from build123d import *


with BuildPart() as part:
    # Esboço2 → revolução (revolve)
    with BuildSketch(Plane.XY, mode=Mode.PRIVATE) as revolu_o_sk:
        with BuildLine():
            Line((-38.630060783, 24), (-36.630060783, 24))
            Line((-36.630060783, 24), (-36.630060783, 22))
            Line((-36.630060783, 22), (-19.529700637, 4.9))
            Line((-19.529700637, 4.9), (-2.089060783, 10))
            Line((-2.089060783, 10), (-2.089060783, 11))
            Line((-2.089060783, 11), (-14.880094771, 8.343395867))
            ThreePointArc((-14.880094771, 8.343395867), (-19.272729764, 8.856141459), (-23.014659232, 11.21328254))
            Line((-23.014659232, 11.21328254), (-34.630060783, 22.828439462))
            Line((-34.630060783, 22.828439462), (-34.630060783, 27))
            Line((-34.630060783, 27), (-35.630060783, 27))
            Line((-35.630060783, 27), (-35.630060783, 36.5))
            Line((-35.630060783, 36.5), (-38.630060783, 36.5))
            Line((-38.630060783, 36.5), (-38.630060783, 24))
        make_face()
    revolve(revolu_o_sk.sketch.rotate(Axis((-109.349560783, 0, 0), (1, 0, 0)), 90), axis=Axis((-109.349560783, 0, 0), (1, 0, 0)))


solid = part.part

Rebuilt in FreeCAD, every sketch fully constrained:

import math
import FreeCAD as App
import Part
import Sketcher
from FreeCAD import Vector
Q = App.Units.Quantity

doc = App.newDocument("Part")
body = doc.addObject("PartDesign::Body", "Body")

sketch1 = doc.addObject("Sketcher::SketchObject", "Sketch")
body.addObject(sketch1)
sketch1.AttachmentSupport = (doc.XY_Plane, [""])
sketch1.MapMode = "FlatFace"
sketch1.addGeometry(Part.LineSegment(Vector(-38.6, 24, 0), Vector(-36.6, 24, 0)), False)
sketch1.addGeometry(Part.LineSegment(Vector(-36.6, 24, 0), Vector(-36.6, 22, 0)), False)
sketch1.addGeometry(Part.LineSegment(Vector(-36.6, 22, 0), Vector(-19.5, 4.9, 0)), False)
sketch1.addGeometry(Part.LineSegment(Vector(-19.5, 4.9, 0), Vector(-2.1, 10, 0)), False)
sketch1.addGeometry(Part.LineSegment(Vector(-2.1, 10, 0), Vector(-2.1, 11, 0)), False)
sketch1.addGeometry(Part.LineSegment(Vector(-2.1, 11, 0), Vector(-14.9, 8.3, 0)), False)
sketch1.addGeometry(Part.ArcOfCircle(Part.Circle(Vector(-15.9, 18.3, 0), Vector(0, 0, 1), 10), math.radians(-135), math.radians(-84)), False)
sketch1.addGeometry(Part.LineSegment(Vector(-23, 11.2, 0), Vector(-34.6, 22.8, 0)), False)
sketch1.addGeometry(Part.LineSegment(Vector(-34.6, 22.8, 0), Vector(-34.6, 27, 0)), False)
sketch1.addGeometry(Part.LineSegment(Vector(-34.6, 27, 0), Vector(-35.6, 27, 0)), False)
sketch1.addGeometry(Part.LineSegment(Vector(-35.6, 27, 0), Vector(-35.6, 36.5, 0)), False)
sketch1.addGeometry(Part.LineSegment(Vector(-35.6, 36.5, 0), Vector(-38.6, 36.5, 0)), False)
sketch1.addGeometry(Part.LineSegment(Vector(-38.6, 36.5, 0), Vector(-38.6, 24, 0)), False)
sketch1.addConstraint(Sketcher.Constraint("Coincident", 0, 2, 1, 1))
sketch1.addConstraint(Sketcher.Constraint("Coincident", 1, 2, 2, 1))
sketch1.addConstraint(Sketcher.Constraint("Coincident", 2, 2, 3, 1))
sketch1.addConstraint(Sketcher.Constraint("Coincident", 3, 2, 4, 1))
sketch1.addConstraint(Sketcher.Constraint("Coincident", 4, 2, 5, 1))
sketch1.addConstraint(Sketcher.Constraint("Coincident", 5, 2, 6, 2))
sketch1.addConstraint(Sketcher.Constraint("Coincident", 6, 1, 7, 1))
sketch1.addConstraint(Sketcher.Constraint("Coincident", 7, 2, 8, 1))
sketch1.addConstraint(Sketcher.Constraint("Coincident", 8, 2, 9, 1))
sketch1.addConstraint(Sketcher.Constraint("Coincident", 9, 2, 10, 1))
sketch1.addConstraint(Sketcher.Constraint("Coincident", 10, 2, 11, 1))
sketch1.addConstraint(Sketcher.Constraint("Coincident", 11, 2, 12, 1))
sketch1.addConstraint(Sketcher.Constraint("Coincident", 12, 2, 0, 1))
sketch1.addConstraint(Sketcher.Constraint("Horizontal", 0))
sketch1.addConstraint(Sketcher.Constraint("Vertical", 1))
sketch1.addConstraint(Sketcher.Constraint("Vertical", 4))
sketch1.addConstraint(Sketcher.Constraint("Vertical", 8))
sketch1.addConstraint(Sketcher.Constraint("Horizontal", 9))
sketch1.addConstraint(Sketcher.Constraint("Vertical", 10))
sketch1.addConstraint(Sketcher.Constraint("Horizontal", 11))
sketch1.addConstraint(Sketcher.Constraint("Vertical", 12))
sketch1.addConstraint(Sketcher.Constraint("Parallel", 2, 7))
sketch1.addConstraint(Sketcher.Constraint("Equal", 0, 1))
sketch1.addConstraint(Sketcher.Constraint("Equal", 9, 4))
sketch1.addConstraint(Sketcher.Constraint("Radius", 6, 10.0))
sketch1.addConstraint(Sketcher.Constraint("DistanceX", 0, 1, 0, 2, 2.0))
sketch1.addConstraint(Sketcher.Constraint("DistanceX", 9, 2, 9, 1, 1.0))
sketch1.addConstraint(Sketcher.Constraint("DistanceX", 11, 2, 11, 1, 3.0))
sketch1.addConstraint(Sketcher.Constraint("DistanceY", 10, 1, 10, 2, 9.5))
sketch1.addConstraint(Sketcher.Constraint("DistanceY", 12, 2, 12, 1, 12.5))
sketch1.addConstraint(Sketcher.Constraint("DistanceY", -1, 1, 0, 2, 24.0))
sketch1.addConstraint(Sketcher.Constraint("DistanceY", -1, 1, 3, 2, 10.0))
sketch1.addConstraint(Sketcher.Constraint("Angle", 3, Q("16.3 deg")))
sketch1.addConstraint(Sketcher.Constraint("DistanceY", -1, 1, 2, 2, 4.9))
sketch1.addConstraint(Sketcher.Constraint("Distance", 5, 13.064))
sketch1.addConstraint(Sketcher.Constraint("DistanceX", 2, 2, 6, 3, 3.584001))
sketch1.addConstraint(Sketcher.Constraint("DistanceX", 1, 2, 3, 2, 34.541))
sketch1.addConstraint(Sketcher.Constraint("DistanceY", 8, 1, 8, 2, 4.171561))
sketch1.addConstraint(Sketcher.Constraint("DistanceX", 6, 3, -1, 1, 15.9457))
sketch1.addConstraint(Sketcher.Constraint("DistanceX", 1, 2, 6, 1, 13.615402))
revolution = doc.addObject("PartDesign::Revolution", "Revolution")
body.addObject(revolution)
revolution.Profile = sketch1
revolution.ReferenceAxis = (sketch1, ["H_Axis"])
revolution.Angle = 360

doc.recompute()
